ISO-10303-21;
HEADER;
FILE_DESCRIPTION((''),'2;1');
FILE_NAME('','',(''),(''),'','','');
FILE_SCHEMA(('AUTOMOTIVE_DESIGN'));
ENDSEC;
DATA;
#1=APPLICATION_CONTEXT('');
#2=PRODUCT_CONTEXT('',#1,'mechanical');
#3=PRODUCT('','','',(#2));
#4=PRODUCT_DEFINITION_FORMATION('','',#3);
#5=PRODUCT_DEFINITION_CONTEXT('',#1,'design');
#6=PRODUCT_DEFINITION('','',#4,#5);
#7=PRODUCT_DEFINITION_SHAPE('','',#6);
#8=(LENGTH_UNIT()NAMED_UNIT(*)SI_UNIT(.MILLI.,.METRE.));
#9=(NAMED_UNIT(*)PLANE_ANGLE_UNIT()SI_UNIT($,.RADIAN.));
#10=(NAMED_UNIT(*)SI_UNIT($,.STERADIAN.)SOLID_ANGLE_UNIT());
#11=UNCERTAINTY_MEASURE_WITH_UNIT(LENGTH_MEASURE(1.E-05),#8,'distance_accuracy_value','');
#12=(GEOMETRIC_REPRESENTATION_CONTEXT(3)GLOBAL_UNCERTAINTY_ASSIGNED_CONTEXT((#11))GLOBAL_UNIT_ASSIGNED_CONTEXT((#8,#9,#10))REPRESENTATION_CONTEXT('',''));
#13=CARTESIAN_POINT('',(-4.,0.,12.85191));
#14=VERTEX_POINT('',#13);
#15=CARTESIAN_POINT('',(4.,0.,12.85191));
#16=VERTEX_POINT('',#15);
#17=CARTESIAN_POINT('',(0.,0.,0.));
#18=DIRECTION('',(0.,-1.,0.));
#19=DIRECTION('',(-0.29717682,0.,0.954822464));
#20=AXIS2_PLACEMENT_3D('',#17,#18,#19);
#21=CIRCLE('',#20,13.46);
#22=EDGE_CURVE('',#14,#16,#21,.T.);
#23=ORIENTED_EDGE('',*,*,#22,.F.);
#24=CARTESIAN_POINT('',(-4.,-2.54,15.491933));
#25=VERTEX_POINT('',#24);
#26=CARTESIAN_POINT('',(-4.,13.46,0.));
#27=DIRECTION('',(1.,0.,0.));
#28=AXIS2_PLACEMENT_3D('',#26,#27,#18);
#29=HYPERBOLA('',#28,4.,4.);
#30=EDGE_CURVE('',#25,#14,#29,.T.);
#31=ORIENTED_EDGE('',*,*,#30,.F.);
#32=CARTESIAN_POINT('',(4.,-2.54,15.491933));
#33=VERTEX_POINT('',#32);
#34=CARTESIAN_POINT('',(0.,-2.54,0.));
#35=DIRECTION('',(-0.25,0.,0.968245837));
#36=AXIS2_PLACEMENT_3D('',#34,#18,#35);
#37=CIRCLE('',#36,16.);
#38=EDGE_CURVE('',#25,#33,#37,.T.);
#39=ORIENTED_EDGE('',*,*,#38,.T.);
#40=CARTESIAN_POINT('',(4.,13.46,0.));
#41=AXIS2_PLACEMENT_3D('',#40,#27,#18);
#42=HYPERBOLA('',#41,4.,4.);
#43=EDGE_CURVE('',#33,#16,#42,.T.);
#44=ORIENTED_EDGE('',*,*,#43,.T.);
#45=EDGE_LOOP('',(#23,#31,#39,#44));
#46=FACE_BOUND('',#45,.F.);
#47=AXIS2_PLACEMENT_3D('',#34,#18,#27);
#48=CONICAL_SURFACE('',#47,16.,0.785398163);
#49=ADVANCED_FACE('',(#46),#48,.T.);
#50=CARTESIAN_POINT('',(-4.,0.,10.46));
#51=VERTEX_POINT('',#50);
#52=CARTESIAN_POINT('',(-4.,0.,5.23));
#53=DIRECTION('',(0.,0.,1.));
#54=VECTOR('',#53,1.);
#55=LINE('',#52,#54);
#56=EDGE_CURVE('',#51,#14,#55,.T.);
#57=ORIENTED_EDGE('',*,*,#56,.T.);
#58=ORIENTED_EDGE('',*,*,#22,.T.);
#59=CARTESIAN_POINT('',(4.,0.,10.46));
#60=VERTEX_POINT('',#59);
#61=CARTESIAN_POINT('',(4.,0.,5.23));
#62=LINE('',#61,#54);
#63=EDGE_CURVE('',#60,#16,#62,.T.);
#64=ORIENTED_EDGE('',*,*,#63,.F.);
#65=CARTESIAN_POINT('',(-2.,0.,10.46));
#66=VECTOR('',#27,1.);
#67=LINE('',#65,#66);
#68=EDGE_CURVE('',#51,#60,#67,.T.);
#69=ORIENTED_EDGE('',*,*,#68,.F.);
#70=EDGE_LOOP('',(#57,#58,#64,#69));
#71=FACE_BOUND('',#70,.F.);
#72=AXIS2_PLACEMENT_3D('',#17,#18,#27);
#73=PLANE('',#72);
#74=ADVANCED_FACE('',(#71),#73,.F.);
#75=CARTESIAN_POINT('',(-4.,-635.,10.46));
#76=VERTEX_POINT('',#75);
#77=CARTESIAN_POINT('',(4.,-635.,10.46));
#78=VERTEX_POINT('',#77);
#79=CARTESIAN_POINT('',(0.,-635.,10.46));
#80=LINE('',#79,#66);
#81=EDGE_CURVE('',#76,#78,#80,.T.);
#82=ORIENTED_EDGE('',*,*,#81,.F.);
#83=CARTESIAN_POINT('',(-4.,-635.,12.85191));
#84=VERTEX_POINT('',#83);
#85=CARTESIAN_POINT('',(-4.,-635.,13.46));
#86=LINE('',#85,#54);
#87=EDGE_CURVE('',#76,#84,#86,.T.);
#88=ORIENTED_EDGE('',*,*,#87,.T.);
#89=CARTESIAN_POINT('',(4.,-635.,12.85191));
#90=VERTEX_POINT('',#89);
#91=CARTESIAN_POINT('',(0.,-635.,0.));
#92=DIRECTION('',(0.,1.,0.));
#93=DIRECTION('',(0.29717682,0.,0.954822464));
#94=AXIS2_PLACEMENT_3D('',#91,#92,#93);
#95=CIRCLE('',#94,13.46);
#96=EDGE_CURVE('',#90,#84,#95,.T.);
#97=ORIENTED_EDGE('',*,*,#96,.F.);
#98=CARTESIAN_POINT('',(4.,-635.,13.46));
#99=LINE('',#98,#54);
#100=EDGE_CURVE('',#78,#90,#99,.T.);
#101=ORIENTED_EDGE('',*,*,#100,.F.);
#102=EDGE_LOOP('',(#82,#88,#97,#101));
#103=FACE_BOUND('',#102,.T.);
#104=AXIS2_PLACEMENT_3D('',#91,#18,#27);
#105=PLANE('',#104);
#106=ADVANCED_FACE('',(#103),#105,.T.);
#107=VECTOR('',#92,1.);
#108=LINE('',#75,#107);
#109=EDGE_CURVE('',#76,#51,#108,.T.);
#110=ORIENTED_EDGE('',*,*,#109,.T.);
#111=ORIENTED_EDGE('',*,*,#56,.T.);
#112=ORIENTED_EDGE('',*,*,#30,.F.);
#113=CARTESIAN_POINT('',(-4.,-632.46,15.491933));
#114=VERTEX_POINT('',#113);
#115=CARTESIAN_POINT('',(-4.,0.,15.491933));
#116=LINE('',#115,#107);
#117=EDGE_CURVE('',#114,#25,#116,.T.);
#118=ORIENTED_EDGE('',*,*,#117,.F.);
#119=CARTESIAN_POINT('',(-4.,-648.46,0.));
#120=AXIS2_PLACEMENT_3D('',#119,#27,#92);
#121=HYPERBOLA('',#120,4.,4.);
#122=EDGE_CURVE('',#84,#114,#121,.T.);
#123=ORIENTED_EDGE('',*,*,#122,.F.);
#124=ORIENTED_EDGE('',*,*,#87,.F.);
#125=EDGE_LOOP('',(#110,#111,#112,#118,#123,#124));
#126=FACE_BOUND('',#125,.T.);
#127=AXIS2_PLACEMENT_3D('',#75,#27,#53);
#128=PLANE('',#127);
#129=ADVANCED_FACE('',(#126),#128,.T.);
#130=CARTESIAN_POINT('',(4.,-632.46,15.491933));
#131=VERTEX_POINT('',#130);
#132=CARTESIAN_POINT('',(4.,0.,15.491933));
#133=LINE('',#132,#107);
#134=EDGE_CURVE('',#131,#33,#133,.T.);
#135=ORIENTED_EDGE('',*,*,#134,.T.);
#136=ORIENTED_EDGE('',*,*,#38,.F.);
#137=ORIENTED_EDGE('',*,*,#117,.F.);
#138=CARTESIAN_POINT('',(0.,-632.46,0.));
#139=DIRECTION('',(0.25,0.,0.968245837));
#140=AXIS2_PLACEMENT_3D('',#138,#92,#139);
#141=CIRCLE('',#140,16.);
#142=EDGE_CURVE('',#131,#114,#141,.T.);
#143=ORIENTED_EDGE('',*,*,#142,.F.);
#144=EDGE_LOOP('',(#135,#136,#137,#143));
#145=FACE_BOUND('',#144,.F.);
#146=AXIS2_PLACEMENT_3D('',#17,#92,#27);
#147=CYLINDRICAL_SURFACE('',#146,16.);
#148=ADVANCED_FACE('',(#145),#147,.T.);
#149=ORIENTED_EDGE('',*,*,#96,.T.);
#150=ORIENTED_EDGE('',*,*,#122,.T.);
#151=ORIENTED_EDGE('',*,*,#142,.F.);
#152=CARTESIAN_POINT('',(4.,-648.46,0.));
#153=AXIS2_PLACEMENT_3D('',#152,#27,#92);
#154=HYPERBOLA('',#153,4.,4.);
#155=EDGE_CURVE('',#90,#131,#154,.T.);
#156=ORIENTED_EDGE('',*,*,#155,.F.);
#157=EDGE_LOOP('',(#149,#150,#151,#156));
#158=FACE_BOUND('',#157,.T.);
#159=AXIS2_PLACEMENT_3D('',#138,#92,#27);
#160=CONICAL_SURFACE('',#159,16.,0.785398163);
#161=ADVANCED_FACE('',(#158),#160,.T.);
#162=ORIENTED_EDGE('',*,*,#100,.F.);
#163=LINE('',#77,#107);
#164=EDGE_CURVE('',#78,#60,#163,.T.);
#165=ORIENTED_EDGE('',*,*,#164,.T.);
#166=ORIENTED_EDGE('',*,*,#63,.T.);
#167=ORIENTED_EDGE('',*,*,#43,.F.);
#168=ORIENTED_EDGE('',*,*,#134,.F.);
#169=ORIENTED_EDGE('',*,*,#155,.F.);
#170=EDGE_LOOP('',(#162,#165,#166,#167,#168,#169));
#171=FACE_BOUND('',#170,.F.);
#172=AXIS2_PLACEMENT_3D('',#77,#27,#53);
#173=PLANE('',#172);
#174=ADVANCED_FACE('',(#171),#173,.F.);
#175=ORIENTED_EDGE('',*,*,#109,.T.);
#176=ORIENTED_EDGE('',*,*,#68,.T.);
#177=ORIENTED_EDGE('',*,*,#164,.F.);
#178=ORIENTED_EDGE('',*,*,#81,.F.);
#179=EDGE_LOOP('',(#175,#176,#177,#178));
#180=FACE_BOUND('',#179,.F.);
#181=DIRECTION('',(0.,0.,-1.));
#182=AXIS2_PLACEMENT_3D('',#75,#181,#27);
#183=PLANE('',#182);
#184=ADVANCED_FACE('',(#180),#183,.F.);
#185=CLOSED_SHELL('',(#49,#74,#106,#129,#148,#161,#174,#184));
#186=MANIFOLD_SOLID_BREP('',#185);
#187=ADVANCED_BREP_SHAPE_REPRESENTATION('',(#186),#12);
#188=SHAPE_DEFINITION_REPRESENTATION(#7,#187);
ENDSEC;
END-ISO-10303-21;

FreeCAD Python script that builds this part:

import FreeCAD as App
import Part
import Sketcher


def edges_at(feature, points):
    """Names of the edges that pass closest to the given points."""
    edges = feature.Shape.Edges
    near = lambda p: min(range(len(edges)), key=lambda i: edges[i].distToShape(Part.Vertex(*p))[0])
    return sorted({f"Edge{near(p) + 1}" for p in points})

doc = App.newDocument("Part")
body = doc.addObject("PartDesign::Body", "Body")

sketch1 = body.newObject("Sketcher::SketchObject", "Sketch")
sketch1.AttachmentSupport = (doc.getObject("XZ_Plane"), [""])
sketch1.MapMode = "FlatFace"
sketch1.addGeometry(Part.Circle(App.Vector(0, 0, 0), App.Vector(0, 0, 1), 16), False)
sketch1.addConstraint(Sketcher.Constraint("Coincident", 0, 3, -1, 1))
sketch1.addConstraint(Sketcher.Constraint("Diameter", 0, 32.0))
pad1 = body.newObject("PartDesign::Pad", "Pad")
pad1.Profile = sketch1
pad1.Length = 635
doc.recompute()

chamfer = body.newObject("PartDesign::Chamfer", "Chamfer")
chamfer.Base = (pad1, edges_at(pad1, [(-16, 0, 0), (-16, -635, 0)]))
chamfer.Size = 2.54

sketch2 = body.newObject("Sketcher::SketchObject", "Sketch001")
sketch2.AttachmentSupport = (doc.getObject("XZ_Plane"), [""])
sketch2.MapMode = "FlatFace"
sketch2.AttachmentOffset = App.Placement(App.Vector(0, 0, 635), App.Rotation())
sketch2.addGeometry(Part.LineSegment(App.Vector(-4, 16, 0), App.Vector(-4, 10, 0)), False)
sketch2.addGeometry(Part.LineSegment(App.Vector(-4, 10, 0), App.Vector(4, 10, 0)), False)
sketch2.addGeometry(Part.LineSegment(App.Vector(4, 10, 0), App.Vector(4, 16, 0)), False)
sketch2.addGeometry(Part.LineSegment(App.Vector(4, 16, 0), App.Vector(-4, 16, 0)), False)
sketch2.addConstraint(Sketcher.Constraint("Coincident", 0, 2, 1, 1))
sketch2.addConstraint(Sketcher.Constraint("Coincident", 1, 2, 2, 1))
sketch2.addConstraint(Sketcher.Constraint("Coincident", 2, 2, 3, 1))
sketch2.addConstraint(Sketcher.Constraint("Coincident", 3, 2, 0, 1))
sketch2.addConstraint(Sketcher.Constraint("Vertical", 0))
sketch2.addConstraint(Sketcher.Constraint("Horizontal", 1))
sketch2.addConstraint(Sketcher.Constraint("Vertical", 2))
sketch2.addConstraint(Sketcher.Constraint("Horizontal", 3))
sketch2.addConstraint(Sketcher.Constraint("DistanceX", 1, 1, 1, 2, 8.0))
sketch2.addConstraint(Sketcher.Constraint("DistanceY", 0, 2, 0, 1, 6.0))
sketch2.addConstraint(Sketcher.Constraint("DistanceX", 0, 2, -1, 1, 4.0))
sketch2.addConstraint(Sketcher.Constraint("DistanceY", -1, 1, 0, 2, 10.46))
pocket1 = body.newObject("PartDesign::Pocket", "Pocket")
pocket1.Profile = sketch2
pocket1.Type = "ThroughAll"

doc.recompute()
